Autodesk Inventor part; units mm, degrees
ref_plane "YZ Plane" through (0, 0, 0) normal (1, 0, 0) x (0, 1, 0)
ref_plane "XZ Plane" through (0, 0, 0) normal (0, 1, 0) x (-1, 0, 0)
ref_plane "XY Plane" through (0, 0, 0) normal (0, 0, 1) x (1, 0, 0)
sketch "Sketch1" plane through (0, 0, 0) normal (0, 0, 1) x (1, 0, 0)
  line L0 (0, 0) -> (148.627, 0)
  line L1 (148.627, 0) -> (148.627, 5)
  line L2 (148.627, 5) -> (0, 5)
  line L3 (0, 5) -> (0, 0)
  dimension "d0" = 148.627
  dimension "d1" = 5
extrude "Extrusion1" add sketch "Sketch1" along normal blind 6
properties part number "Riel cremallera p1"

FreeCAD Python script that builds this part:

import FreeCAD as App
import Part
import Sketcher
from FreeCAD import Vector


def add_polygon(sketch, points):
    """Adds a closed chain of lines whose ends are joined by coincident constraints."""
    first, n = sketch.GeometryCount, len(points)
    for a, b in zip(points, points[1:] + points[:1]):
        sketch.addGeometry(Part.LineSegment(App.Vector(*a, 0), App.Vector(*b, 0)), False)
    for i in range(n):
        sketch.addConstraint(Sketcher.Constraint("Coincident", first + i, 2, first + (i + 1) % n, 1))

doc = App.newDocument("Part")
body = doc.addObject("PartDesign::Body", "Body")

sketch1 = body.newObject("Sketcher::SketchObject", "Sketch")
sketch1.AttachmentSupport = (doc.getObject("XY_Plane"), [""])
sketch1.MapMode = "FlatFace"
add_polygon(sketch1, [(0, 5), (0, 0), (149, 0), (149, 5)])
sketch1.addConstraint(Sketcher.Constraint("Vertical", 0))
sketch1.addConstraint(Sketcher.Constraint("Horizontal", 1))
sketch1.addConstraint(Sketcher.Constraint("Vertical", 2))
sketch1.addConstraint(Sketcher.Constraint("Horizontal", 3))
sketch1.addConstraint(Sketcher.Constraint("Coincident", 0, 2, -1, 1))
sketch1.addConstraint(Sketcher.Constraint("DistanceY", 0, 2, 0, 1, 5.0))
sketch1.addConstraint(Sketcher.Constraint("DistanceX", 1, 1, 1, 2, 148.627))
pad1 = body.newObject("PartDesign::Pad", "Pad")
pad1.Profile = sketch1
pad1.Length = 6

doc.recompute()
